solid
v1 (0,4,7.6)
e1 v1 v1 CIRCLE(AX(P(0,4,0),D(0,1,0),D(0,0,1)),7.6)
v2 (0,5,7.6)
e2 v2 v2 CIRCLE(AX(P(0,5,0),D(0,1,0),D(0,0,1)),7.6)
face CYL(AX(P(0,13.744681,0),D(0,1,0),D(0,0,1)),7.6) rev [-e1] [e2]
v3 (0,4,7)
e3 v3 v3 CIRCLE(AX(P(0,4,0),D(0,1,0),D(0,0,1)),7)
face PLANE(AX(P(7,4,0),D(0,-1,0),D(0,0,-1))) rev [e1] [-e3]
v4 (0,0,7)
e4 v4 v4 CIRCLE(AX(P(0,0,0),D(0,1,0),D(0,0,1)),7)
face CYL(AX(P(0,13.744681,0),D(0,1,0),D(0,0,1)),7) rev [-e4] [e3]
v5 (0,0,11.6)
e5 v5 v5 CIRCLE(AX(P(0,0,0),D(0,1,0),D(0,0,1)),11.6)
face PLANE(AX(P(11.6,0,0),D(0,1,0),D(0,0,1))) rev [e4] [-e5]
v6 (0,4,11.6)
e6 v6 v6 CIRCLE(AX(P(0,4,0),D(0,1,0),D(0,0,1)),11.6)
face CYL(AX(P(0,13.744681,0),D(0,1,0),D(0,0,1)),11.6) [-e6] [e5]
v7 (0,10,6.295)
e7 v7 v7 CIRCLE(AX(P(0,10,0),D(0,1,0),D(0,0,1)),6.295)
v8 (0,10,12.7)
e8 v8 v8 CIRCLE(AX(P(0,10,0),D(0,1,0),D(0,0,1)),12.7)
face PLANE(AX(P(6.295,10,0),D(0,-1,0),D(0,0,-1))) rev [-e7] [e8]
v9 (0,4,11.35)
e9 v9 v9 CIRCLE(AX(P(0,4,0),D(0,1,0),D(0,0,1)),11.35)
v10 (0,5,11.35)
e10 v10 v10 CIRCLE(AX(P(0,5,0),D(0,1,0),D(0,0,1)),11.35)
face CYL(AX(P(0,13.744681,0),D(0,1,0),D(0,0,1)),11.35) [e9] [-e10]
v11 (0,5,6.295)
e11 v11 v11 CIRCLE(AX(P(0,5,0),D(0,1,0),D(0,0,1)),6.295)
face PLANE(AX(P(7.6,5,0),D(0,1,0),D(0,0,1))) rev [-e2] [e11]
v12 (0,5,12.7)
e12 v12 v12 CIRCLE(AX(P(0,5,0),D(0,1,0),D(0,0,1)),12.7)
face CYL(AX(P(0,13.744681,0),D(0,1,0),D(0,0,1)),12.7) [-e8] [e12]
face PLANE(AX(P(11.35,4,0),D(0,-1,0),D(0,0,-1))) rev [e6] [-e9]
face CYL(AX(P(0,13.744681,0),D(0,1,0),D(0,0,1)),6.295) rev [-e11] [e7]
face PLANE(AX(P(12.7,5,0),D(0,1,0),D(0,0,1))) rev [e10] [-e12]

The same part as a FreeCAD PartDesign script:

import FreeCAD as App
import Part
import Sketcher
from FreeCAD import Vector
Q = App.Units.Quantity


def add_polygon(sketch, points):
    """Adds a closed chain of lines whose ends are joined by coincident constraints."""
    first, n = sketch.GeometryCount, len(points)
    for a, b in zip(points, points[1:] + points[:1]):
        sketch.addGeometry(Part.LineSegment(App.Vector(*a, 0), App.Vector(*b, 0)), False)
    for i in range(n):
        sketch.addConstraint(Sketcher.Constraint("Coincident", first + i, 2, first + (i + 1) % n, 1))

doc = App.newDocument("Part")
body = doc.addObject("PartDesign::Body", "Body")

# Sketch on XY plane
sketch1 = body.newObject("Sketcher::SketchObject", "Sketch")
sketch1.AttachmentSupport = (doc.getObject("XY_Plane"), [""])
sketch1.MapMode = "FlatFace"
add_polygon(sketch1, [(7, 0), (11.6, 0), (11.6, 4), (11.35, 4), (11.35, 5), (12.7, 5), (12.7, 10), (6.29, 10), (6.29, 5), (7.6, 5), (7.6, 4), (7, 4)])  # lines 0-11
sketch1.addConstraint([
    Sketcher.Constraint("Horizontal", 0),
    Sketcher.Constraint("Vertical", 1),
    Sketcher.Constraint("Horizontal", 2),
    Sketcher.Constraint("Vertical", 3),
    Sketcher.Constraint("Horizontal", 4),
    Sketcher.Constraint("Vertical", 5),
    Sketcher.Constraint("Horizontal", 6),
    Sketcher.Constraint("Vertical", 7),
    Sketcher.Constraint("Horizontal", 8),
    Sketcher.Constraint("Vertical", 9),
    Sketcher.Constraint("Horizontal", 10),
    Sketcher.Constraint("Vertical", 11),
    Sketcher.Constraint("PointOnObject", 0, 2, -1),
    Sketcher.Constraint("Horizontal", 4, 2, 7, 2),
    Sketcher.Constraint("Horizontal", 2, 2, 9, 2),
    Sketcher.Constraint("DistanceY", 1, 1, 1, 2, Q("4 mm")),
    Sketcher.Constraint("DistanceY", 3, 1, 3, 2, Q("1 mm")),
    Sketcher.Constraint("DistanceY", 5, 1, 5, 2, Q("5 mm")),
    Sketcher.Constraint("DistanceX", 0, 1, 0, 2, Q("4.6 mm")),
    Sketcher.Constraint("DistanceX", 10, 2, 10, 1, Q("0.6 mm")),
    Sketcher.Constraint("DistanceX", -1, 1, 10, 2, Q("7 mm")),
    Sketcher.Constraint("DistanceX", 2, 2, 2, 1, Q("0.25 mm")),
    Sketcher.Constraint("DistanceX", 4, 1, 4, 2, Q("1.35 mm")),
    Sketcher.Constraint("DistanceX", 6, 2, 6, 1, Q("6.405 mm")),
])
revolution = body.newObject("PartDesign::Revolution", "Revolution")
revolution.Profile = sketch1
revolution.ReferenceAxis = (sketch1, ["V_Axis"])
revolution.Angle = 360

doc.recompute()
